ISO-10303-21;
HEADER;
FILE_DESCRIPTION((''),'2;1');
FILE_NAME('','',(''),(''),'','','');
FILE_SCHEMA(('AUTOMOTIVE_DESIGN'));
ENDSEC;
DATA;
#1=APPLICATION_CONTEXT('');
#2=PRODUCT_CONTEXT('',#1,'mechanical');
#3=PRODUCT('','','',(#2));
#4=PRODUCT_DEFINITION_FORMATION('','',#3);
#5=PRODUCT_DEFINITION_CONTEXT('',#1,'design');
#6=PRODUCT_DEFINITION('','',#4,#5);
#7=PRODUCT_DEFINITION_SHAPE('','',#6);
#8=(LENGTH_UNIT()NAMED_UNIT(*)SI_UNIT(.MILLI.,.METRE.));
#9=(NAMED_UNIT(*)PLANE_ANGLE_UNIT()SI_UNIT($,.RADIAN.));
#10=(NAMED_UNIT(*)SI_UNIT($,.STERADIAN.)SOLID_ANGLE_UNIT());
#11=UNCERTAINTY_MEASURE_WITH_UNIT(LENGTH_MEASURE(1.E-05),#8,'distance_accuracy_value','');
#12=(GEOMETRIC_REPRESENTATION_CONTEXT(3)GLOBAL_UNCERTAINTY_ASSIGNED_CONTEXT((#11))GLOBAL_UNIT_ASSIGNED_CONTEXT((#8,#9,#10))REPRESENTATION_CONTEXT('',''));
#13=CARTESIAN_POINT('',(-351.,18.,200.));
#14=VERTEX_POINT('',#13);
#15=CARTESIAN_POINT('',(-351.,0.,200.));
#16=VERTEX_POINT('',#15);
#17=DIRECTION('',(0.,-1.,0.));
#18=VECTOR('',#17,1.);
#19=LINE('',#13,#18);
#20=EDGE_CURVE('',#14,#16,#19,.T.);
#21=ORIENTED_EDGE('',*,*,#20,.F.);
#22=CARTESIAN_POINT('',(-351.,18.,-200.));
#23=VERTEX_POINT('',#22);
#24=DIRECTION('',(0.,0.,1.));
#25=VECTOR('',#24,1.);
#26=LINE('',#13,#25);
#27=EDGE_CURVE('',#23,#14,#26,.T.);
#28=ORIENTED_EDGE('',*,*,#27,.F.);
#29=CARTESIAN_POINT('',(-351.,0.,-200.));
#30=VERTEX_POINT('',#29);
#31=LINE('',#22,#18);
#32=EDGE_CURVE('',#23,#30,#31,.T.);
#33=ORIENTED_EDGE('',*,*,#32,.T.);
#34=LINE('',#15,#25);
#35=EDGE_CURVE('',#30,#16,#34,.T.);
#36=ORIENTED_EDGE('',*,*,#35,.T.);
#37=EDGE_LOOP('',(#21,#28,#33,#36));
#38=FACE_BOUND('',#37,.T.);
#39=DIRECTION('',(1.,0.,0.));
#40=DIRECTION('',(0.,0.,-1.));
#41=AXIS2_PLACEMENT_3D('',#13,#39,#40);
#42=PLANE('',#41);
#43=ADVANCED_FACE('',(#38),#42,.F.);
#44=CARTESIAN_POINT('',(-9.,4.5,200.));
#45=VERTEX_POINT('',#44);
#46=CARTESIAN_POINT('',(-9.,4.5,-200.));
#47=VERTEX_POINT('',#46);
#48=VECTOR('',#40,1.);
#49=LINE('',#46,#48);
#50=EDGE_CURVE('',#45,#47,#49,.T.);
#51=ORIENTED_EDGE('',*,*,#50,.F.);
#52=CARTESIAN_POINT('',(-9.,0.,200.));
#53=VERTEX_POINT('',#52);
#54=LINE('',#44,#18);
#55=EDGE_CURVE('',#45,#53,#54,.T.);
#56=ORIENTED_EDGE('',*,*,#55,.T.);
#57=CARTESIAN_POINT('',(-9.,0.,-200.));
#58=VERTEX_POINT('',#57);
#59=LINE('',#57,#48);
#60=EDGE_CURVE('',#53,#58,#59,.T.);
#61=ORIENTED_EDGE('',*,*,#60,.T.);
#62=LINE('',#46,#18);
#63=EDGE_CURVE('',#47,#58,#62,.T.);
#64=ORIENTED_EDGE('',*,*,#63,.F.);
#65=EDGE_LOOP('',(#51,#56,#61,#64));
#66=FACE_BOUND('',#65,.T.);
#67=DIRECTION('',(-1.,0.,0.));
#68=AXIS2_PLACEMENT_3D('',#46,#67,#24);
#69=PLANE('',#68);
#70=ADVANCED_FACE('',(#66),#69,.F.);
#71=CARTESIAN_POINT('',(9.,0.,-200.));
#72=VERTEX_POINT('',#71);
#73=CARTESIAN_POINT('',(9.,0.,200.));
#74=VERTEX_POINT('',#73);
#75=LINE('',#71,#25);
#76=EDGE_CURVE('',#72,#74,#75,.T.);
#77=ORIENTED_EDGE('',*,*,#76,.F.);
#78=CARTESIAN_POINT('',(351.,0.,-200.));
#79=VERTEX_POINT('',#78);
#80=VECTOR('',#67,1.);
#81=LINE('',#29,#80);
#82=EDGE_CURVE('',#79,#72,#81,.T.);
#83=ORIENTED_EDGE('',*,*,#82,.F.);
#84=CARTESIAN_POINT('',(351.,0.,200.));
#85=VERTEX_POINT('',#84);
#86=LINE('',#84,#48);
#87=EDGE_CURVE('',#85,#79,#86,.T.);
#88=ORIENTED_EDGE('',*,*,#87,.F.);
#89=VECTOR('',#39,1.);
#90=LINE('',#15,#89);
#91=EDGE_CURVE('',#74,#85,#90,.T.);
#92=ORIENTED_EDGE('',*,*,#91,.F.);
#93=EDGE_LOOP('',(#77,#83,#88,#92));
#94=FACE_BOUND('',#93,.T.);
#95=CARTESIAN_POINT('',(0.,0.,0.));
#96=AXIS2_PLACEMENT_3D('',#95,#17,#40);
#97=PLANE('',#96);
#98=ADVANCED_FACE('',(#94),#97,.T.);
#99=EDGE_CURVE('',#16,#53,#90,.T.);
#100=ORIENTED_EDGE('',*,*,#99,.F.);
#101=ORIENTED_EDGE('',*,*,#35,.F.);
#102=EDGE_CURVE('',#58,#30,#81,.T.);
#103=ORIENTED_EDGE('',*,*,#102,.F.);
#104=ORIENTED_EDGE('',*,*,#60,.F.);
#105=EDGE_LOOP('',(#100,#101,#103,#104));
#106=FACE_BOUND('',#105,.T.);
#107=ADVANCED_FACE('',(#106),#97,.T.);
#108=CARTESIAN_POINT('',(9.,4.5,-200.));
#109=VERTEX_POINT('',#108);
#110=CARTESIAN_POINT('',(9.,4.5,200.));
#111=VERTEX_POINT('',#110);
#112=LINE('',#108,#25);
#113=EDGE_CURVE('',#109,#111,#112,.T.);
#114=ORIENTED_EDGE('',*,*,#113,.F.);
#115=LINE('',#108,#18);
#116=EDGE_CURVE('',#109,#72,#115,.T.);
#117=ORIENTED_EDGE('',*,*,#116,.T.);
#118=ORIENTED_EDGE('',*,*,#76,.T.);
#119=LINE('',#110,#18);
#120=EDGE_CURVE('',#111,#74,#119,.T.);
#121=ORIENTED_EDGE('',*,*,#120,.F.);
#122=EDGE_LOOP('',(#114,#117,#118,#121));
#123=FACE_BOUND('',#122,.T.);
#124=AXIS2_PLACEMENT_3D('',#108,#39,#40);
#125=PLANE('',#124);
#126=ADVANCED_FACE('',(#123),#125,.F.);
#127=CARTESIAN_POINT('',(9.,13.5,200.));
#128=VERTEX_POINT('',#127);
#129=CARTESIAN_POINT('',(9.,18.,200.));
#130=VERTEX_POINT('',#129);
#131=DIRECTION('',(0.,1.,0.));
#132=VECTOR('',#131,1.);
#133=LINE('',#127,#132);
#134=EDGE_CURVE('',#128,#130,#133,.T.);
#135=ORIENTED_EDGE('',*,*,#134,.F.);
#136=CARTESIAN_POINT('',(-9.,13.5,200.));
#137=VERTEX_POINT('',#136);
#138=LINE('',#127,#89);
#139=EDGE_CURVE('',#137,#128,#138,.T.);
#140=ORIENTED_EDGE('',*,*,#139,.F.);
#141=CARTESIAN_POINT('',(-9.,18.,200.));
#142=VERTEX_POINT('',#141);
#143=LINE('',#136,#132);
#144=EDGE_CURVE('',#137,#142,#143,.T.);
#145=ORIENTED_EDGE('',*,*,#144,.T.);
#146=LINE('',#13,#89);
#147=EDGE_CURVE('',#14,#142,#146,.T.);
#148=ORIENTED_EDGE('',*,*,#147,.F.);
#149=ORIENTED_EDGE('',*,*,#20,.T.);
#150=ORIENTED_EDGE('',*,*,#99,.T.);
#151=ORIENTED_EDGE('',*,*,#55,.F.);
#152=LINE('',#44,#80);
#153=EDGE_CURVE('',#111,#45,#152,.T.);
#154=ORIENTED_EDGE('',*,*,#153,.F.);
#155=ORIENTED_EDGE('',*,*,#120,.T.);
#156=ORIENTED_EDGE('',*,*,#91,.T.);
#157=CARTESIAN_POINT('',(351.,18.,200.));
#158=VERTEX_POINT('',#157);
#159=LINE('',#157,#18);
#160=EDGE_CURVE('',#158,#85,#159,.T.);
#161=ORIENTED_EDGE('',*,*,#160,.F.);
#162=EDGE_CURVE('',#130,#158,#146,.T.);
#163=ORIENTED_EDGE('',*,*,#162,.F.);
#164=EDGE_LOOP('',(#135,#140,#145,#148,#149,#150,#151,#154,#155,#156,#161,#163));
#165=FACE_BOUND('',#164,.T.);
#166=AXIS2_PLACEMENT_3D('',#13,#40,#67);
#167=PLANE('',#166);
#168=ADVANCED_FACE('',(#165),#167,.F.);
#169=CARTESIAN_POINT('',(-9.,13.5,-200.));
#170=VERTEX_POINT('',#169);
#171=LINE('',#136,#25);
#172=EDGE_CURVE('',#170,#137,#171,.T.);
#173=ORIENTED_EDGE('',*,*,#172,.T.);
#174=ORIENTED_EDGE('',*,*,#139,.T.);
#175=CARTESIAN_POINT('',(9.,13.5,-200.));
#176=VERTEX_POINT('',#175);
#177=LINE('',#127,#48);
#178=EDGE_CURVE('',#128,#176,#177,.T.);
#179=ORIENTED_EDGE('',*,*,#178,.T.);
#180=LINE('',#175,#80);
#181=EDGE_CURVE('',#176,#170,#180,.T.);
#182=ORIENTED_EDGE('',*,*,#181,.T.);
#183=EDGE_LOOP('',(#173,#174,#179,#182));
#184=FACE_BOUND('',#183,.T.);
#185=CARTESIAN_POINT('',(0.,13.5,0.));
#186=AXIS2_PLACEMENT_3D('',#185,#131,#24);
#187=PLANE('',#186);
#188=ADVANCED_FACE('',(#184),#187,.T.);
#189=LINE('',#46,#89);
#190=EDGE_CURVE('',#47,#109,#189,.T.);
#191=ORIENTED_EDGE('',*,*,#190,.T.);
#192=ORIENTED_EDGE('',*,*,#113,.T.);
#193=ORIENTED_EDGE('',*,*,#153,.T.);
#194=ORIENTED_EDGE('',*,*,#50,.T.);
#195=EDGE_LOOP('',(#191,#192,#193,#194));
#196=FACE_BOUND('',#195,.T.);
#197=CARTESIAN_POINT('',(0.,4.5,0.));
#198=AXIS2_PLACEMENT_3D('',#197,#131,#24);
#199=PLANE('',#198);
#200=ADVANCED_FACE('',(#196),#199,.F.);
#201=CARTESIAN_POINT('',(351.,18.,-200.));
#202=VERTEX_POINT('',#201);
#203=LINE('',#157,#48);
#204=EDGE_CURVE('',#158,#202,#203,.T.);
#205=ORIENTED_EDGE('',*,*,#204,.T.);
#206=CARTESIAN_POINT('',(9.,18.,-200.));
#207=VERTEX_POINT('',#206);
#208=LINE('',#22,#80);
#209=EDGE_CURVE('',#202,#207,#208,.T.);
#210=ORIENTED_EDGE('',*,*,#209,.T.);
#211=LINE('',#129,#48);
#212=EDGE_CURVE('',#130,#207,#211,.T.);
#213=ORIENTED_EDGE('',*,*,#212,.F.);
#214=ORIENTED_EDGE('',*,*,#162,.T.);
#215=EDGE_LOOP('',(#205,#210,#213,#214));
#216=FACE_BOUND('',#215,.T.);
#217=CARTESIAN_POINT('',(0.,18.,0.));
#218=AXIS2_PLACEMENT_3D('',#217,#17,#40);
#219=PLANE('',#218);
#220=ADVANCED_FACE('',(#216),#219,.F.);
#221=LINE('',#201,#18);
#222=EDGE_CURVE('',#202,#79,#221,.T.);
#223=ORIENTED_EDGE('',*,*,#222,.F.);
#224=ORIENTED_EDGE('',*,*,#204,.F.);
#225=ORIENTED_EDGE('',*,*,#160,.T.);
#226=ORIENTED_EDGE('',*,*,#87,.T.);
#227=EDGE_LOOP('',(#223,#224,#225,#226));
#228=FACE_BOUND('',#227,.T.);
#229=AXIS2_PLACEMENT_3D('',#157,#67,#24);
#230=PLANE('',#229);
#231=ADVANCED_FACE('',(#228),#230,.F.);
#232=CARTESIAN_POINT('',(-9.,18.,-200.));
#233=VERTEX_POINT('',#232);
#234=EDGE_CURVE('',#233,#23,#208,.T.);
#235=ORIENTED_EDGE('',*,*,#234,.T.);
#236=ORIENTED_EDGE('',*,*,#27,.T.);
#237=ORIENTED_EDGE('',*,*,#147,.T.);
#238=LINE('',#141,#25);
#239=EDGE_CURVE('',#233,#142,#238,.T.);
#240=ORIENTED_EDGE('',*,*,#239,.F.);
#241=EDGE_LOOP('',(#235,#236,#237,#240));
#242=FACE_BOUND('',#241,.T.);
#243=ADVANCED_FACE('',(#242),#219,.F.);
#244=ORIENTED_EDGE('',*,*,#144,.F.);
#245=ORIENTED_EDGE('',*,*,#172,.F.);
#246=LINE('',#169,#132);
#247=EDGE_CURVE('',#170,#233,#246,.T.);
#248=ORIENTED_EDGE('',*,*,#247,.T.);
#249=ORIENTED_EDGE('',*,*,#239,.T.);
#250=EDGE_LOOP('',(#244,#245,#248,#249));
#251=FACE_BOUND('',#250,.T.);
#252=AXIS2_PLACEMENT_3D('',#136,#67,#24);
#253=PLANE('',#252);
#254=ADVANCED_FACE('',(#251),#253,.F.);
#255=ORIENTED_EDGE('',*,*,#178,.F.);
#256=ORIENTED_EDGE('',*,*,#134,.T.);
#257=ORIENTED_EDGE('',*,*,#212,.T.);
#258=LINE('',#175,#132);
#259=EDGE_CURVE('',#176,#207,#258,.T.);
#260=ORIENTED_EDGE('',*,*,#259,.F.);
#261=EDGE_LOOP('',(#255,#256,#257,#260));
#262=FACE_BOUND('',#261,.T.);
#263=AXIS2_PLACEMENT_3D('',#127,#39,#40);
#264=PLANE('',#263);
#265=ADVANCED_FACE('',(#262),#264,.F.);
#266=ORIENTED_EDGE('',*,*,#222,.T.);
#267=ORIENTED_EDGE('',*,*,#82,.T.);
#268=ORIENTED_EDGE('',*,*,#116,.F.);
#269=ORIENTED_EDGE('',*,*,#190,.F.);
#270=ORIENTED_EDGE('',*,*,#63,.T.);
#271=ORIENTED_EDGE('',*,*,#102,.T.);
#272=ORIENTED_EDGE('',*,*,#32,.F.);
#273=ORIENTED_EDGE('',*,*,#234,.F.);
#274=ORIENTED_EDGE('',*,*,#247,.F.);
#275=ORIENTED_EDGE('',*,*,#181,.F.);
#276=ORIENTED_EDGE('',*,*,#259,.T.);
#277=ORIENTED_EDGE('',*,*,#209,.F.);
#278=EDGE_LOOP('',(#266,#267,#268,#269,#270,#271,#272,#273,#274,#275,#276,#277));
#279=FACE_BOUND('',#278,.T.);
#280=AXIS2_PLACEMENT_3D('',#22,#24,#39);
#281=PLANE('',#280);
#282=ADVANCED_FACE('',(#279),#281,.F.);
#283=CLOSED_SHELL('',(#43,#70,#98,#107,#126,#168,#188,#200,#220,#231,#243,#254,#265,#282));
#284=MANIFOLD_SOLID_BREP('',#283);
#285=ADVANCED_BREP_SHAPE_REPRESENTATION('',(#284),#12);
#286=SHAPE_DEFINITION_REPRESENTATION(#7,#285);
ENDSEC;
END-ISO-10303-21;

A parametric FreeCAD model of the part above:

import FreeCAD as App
import Part
import Sketcher
Q = App.Units.Quantity


def add_polygon(sketch, points):
    """Adds a closed chain of lines whose ends are joined by coincident constraints."""
    first, n = sketch.GeometryCount, len(points)
    for a, b in zip(points, points[1:] + points[:1]):
        sketch.addGeometry(Part.LineSegment(App.Vector(*a, 0), App.Vector(*b, 0)), False)
    for i in range(n):
        sketch.addConstraint(Sketcher.Constraint("Coincident", first + i, 2, first + (i + 1) % n, 1))

doc = App.newDocument("Part")
body = doc.addObject("PartDesign::Body", "Body")

sketch1 = body.newObject("Sketcher::SketchObject", "Sketch")
sketch1.AttachmentSupport = (doc.getObject("XZ_Plane"), [""])
sketch1.MapMode = "FlatFace"
add_polygon(sketch1, [(-351, -200), (-351, 200), (351, 200), (351, -200)])
sketch1.addConstraint([
    Sketcher.Constraint("Vertical", 0),
    Sketcher.Constraint("Horizontal", 1),
    Sketcher.Constraint("Vertical", 2),
    Sketcher.Constraint("Horizontal", 3),
    Sketcher.Constraint("Symmetric", 0, 2, 2, 2, -1, 1),
    Sketcher.Constraint("DistanceX", 1, 1, 1, 2, Q("702 mm")),
    Sketcher.Constraint("DistanceY", 0, 1, 0, 2, Q("400 mm")),
])
pad1 = body.newObject("PartDesign::Pad", "Pad")
pad1.Profile = sketch1
pad1.Length = 18
pad1.Reversed = True

sketch2 = body.newObject("Sketcher::SketchObject", "Sketch001")
sketch2.AttachmentSupport = (doc.getObject("XZ_Plane"), [""])
sketch2.MapMode = "FlatFace"
sketch2.AttachmentOffset = App.Placement(App.Vector(0, 0, -18), App.Rotation())
add_polygon(sketch2, [(-9, -200), (-9, 200), (9, 200), (9, -200)])
sketch2.addConstraint([
    Sketcher.Constraint("Vertical", 0),
    Sketcher.Constraint("Horizontal", 1),
    Sketcher.Constraint("Vertical", 2),
    Sketcher.Constraint("Horizontal", 3),
    Sketcher.Constraint("Symmetric", 0, 2, 2, 2, -1, 1),
    Sketcher.Constraint("DistanceX", 1, 1, 1, 2, Q("18 mm")),
    Sketcher.Constraint("DistanceY", 0, 1, 0, 2, Q("400 mm")),
])
pocket1 = body.newObject("PartDesign::Pocket", "Pocket")
pocket1.Profile = sketch2
pocket1.Length = 4.5
pocket1.Reversed = True

sketch3 = body.newObject("Sketcher::SketchObject", "Sketch002")
sketch3.AttachmentSupport = (doc.getObject("XZ_Plane"), [""])
sketch3.MapMode = "FlatFace"
add_polygon(sketch3, [(9, -200), (9, 200), (-9, 200), (-9, -200)])
sketch3.addConstraint([
    Sketcher.Constraint("Vertical", 0),
    Sketcher.Constraint("Horizontal", 1),
    Sketcher.Constraint("Vertical", 2),
    Sketcher.Constraint("Horizontal", 3),
    Sketcher.Constraint("Symmetric", 0, 2, 2, 2, -1, 1),
    Sketcher.Constraint("DistanceX", 1, 2, 1, 1, Q("18 mm")),
    Sketcher.Constraint("DistanceY", 0, 1, 0, 2, Q("400 mm")),
])
pocket2 = body.newObject("PartDesign::Pocket", "Pocket001")
pocket2.Profile = sketch3
pocket2.Length = 4.5

doc.recompute()
